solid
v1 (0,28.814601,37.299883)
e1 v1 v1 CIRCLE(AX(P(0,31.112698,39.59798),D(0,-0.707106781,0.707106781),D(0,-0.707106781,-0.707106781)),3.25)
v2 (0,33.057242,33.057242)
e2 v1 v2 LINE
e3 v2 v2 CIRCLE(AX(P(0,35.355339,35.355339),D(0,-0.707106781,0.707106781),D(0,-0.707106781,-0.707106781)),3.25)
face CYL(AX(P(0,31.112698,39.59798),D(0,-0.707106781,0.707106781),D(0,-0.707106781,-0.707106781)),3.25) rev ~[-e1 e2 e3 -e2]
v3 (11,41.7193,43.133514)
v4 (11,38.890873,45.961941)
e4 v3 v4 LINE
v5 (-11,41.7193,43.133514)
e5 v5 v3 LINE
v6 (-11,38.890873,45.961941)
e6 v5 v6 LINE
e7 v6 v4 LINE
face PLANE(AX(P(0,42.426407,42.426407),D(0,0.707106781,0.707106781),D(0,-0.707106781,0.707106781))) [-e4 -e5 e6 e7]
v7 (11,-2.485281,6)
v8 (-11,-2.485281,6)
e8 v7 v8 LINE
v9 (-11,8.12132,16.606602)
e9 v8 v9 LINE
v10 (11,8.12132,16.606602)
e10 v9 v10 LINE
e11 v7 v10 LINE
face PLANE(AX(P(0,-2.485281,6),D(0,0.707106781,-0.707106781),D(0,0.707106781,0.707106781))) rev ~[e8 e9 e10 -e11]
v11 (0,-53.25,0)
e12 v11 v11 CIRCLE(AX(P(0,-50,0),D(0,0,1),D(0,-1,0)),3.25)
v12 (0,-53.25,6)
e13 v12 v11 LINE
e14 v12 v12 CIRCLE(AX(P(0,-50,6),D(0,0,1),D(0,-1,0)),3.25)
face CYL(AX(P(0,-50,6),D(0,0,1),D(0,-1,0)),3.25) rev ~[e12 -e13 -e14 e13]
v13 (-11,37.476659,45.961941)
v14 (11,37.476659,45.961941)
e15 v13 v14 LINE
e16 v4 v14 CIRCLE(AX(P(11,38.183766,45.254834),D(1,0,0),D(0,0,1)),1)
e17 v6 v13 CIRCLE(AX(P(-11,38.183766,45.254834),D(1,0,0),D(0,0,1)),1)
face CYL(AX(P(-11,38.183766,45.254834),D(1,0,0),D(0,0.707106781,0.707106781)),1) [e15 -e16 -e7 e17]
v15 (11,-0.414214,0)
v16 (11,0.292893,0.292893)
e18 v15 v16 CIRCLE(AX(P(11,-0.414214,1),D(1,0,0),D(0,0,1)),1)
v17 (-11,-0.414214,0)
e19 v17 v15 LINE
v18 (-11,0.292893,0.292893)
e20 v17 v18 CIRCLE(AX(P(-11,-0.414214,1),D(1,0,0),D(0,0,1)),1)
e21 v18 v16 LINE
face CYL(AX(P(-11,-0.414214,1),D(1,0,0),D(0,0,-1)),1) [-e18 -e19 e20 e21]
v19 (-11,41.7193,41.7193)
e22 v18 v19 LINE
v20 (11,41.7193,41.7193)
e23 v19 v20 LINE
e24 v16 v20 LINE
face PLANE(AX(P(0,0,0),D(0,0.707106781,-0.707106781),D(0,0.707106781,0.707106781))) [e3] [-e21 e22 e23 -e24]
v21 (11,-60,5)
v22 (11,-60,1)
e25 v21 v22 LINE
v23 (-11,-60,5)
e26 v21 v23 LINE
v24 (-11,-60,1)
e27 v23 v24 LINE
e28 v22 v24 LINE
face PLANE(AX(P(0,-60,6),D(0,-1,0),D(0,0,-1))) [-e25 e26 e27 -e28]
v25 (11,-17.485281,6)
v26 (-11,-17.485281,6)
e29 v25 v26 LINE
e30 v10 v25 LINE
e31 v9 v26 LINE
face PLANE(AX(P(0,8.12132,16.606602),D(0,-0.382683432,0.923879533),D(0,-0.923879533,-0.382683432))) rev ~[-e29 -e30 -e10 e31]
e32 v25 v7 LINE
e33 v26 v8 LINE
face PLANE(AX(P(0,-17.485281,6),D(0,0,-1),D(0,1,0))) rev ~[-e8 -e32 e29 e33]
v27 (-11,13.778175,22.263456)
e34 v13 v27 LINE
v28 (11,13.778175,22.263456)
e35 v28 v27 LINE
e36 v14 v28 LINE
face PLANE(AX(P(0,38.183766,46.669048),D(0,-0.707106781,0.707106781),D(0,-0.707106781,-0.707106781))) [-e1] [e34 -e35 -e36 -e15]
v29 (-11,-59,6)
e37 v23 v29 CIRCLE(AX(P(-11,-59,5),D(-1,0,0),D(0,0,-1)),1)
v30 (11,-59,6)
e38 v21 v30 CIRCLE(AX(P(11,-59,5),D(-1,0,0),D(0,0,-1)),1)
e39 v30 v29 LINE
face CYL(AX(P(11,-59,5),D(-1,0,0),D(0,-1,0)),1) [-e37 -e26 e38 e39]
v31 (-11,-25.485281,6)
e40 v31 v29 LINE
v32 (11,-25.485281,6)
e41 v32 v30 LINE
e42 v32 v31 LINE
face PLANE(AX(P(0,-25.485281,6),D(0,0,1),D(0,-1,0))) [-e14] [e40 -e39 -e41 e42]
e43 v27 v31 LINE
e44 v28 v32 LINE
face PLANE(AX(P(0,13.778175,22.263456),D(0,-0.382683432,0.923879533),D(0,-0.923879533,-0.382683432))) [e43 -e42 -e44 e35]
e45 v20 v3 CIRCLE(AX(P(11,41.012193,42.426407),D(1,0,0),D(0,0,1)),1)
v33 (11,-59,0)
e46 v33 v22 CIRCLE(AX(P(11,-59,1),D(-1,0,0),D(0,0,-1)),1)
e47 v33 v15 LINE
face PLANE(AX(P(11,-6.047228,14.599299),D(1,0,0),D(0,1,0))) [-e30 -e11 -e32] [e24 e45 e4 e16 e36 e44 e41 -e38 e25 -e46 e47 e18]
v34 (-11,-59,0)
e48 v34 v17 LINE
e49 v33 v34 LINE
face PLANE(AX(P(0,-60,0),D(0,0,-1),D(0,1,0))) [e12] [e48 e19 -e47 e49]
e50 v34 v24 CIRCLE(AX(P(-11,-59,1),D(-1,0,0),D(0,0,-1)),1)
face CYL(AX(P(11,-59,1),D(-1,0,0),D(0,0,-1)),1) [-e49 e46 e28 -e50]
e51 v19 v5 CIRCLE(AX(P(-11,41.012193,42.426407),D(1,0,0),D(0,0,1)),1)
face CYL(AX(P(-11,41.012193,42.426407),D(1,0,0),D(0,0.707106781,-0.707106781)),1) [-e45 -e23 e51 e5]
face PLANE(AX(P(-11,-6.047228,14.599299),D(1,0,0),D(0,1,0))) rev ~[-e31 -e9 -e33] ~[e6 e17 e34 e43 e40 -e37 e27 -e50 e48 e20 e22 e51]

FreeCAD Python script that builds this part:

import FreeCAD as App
import Part
import Sketcher
Q = App.Units.Quantity


def edges_at(feature, points):
    """Names of the edges that pass closest to the given points."""
    edges = feature.Shape.Edges
    near = lambda p: min(range(len(edges)), key=lambda i: edges[i].distToShape(Part.Vertex(*p))[0])
    return sorted({f"Edge{near(p) + 1}" for p in points})

doc = App.newDocument("Part")
params = doc.addObject("Spreadsheet::Sheet", "Params")
for row, (alias, value) in enumerate([
    ("sketch1_width", "60 mm"),
    ("sketch1_width2", "15 mm"),
    ("sketch1_height", "6 mm"),
    ("sketch1_length", "60 mm"),
    ("sketch1_length2", "6 mm"),
    ("pad1_length", "22 mm"),
    ("sketch2_diameter", "6.5 mm"),
    ("pocket1_length", "6 mm"),
    ("sketch3_diameter", "6.5 mm"),
    ("pocket2_length", "6 mm"),
    ("fillet_radius", "1 mm"),
], start=1):
    params.set(f"A{row}", alias)
    params.set(f"B{row}", "=" + value)
    params.setAlias(f"B{row}", alias)

body = doc.addObject("PartDesign::Body", "Body")

sketch1 = doc.addObject("Sketcher::SketchObject", "Sketch")
body.addObject(sketch1)
sketch1.AttachmentSupport = (doc.YZ_Plane, [""])
sketch1.MapMode = "FlatFace"
sketch1.addGeometry([
    Part.LineSegment(App.Vector(-60, 0, 0), App.Vector(0, 0, 0)),
    Part.LineSegment(App.Vector(0, 0, 0), App.Vector(42, 42, 0)),
    Part.LineSegment(App.Vector(42, 42, 0), App.Vector(38, 47, 0)),
    Part.LineSegment(App.Vector(38, 47, 0), App.Vector(14, 22, 0)),
    Part.LineSegment(App.Vector(14, 22, 0), App.Vector(-25, 6, 0)),
    Part.LineSegment(App.Vector(-25, 6, 0), App.Vector(-60, 6, 0)),
    Part.LineSegment(App.Vector(-60, 6, 0), App.Vector(-60, 0, 0)),
    Part.LineSegment(App.Vector(-17, 6, 0), App.Vector(8, 17, 0)),
    Part.LineSegment(App.Vector(8, 17, 0), App.Vector(-2, 6, 0)),
    Part.LineSegment(App.Vector(-2, 6, 0), App.Vector(-17, 6, 0)),
], False)
sketch1.addConstraint([
    Sketcher.Constraint("Coincident", 0, 2, 1, 1),
    Sketcher.Constraint("Coincident", 1, 2, 2, 1),
    Sketcher.Constraint("Coincident", 2, 2, 3, 1),
    Sketcher.Constraint("Coincident", 3, 2, 4, 1),
    Sketcher.Constraint("Coincident", 4, 2, 5, 1),
    Sketcher.Constraint("Coincident", 5, 2, 6, 1),
    Sketcher.Constraint("Coincident", 6, 2, 0, 1),
    Sketcher.Constraint("Coincident", 7, 2, 8, 1),
    Sketcher.Constraint("Coincident", 8, 2, 9, 1),
    Sketcher.Constraint("Coincident", 9, 2, 7, 1),
    Sketcher.Constraint("Horizontal", 0),
    Sketcher.Constraint("Horizontal", 5),
    Sketcher.Constraint("Vertical", 6),
    Sketcher.Constraint("Horizontal", 9),
    Sketcher.Constraint("Coincident", 0, 2, -1, 1),
    Sketcher.Constraint("Perpendicular", 1, 2),
    Sketcher.Constraint("Perpendicular", 2, 3),
    Sketcher.Constraint("Parallel", 4, 7),
    Sketcher.Constraint("Parallel", 3, 8),
    Sketcher.Constraint("Horizontal", 5, 2, 8, 2),
    Sketcher.Constraint("DistanceX", 0, 1, 0, 2, Q("60 mm")),
    Sketcher.Constraint("DistanceX", 9, 2, 9, 1, Q("15 mm")),
    Sketcher.Constraint("DistanceY", 6, 2, 6, 1, Q("6 mm")),
    Sketcher.Constraint("Angle", 1, Q("45 deg")),
    Sketcher.Constraint("Distance", 1, Q("60 mm")),
    Sketcher.Constraint("Distance", 2, Q("6 mm")),
    Sketcher.Constraint("Distance", 8, Q("15 mm")),
    Sketcher.Constraint("DistanceX", 4, 2, 8, 2, Q("23 mm")),
    Sketcher.Constraint("DistanceX", 5, 2, 5, 1, Q("34.514719 mm")),
])
sketch1.setExpression("Constraints[20]", "Params.sketch1_width")
sketch1.setExpression("Constraints[21]", "Params.sketch1_width2")
sketch1.setExpression("Constraints[22]", "Params.sketch1_height")
sketch1.setExpression("Constraints[24]", "Params.sketch1_length")
sketch1.setExpression("Constraints[25]", "Params.sketch1_length2")
pad1 = doc.addObject("PartDesign::Pad", "Pad")
body.addObject(pad1)
pad1.Profile = sketch1
pad1.setExpression("Length", "Params.pad1_length")
pad1.Midplane = True

sketch2 = doc.addObject("Sketcher::SketchObject", "Sketch001")
body.addObject(sketch2)
sketch2.AttachmentSupport = (doc.XY_Plane, [""])
sketch2.MapMode = "FlatFace"
sketch2.AttachmentOffset = App.Placement(App.Vector(0, 0, 6), App.Rotation())
sketch2.addGeometry(Part.Circle(App.Vector(0, -50, 0), App.Vector(0, 0, 1), 3.2), False)
sketch2.addConstraint([
    Sketcher.Constraint("PointOnObject", 0, 3, -2),
    Sketcher.Constraint("Diameter", 0, Q("6.5 mm")),
    Sketcher.Constraint("DistanceY", 0, 3, -1, 1, Q("50 mm")),
])
sketch2.setExpression("Constraints[1]", "Params.sketch2_diameter")
pocket1 = doc.addObject("PartDesign::Pocket", "Pocket")
body.addObject(pocket1)
pocket1.Profile = sketch2
pocket1.setExpression("Length", "Params.pocket1_length")

sketch3 = doc.addObject("Sketcher::SketchObject", "Sketch002")
body.addObject(sketch3)
sketch3.Placement = App.Placement(App.Vector(0, -4.242641, 4.242641), App.Rotation(App.Vector(0, -0.707106781, -0.707106781), App.Vector(0.999999999, 0, 0), App.Vector(0, -0.707106781, 0.707106781), "ZXY"))
sketch3.addGeometry(Part.Circle(App.Vector(-50, 0, 0), App.Vector(0, 0, 1), 3.2), False)
sketch3.addConstraint([
    Sketcher.Constraint("PointOnObject", 0, 3, -1),
    Sketcher.Constraint("Diameter", 0, Q("6.5 mm")),
    Sketcher.Constraint("DistanceX", 0, 3, -1, 1, Q("50 mm")),
])
sketch3.setExpression("Constraints[1]", "Params.sketch3_diameter")
pocket2 = doc.addObject("PartDesign::Pocket", "Pocket001")
body.addObject(pocket2)
pocket2.Profile = sketch3
pocket2.setExpression("Length", "Params.pocket2_length")
doc.recompute()

fillet = doc.addObject("PartDesign::Fillet", "Fillet")
body.addObject(fillet)
fillet.Base = (pocket2, edges_at(pocket2, [
    (0, 0, 0),
    (0, -60, 0),
    (0, -60, 6),
    (0, 38.184, 46.669),
    (0, 42.426, 42.426),
]))
fillet.setExpression("Radius", "Params.fillet_radius")

doc.recompute()
